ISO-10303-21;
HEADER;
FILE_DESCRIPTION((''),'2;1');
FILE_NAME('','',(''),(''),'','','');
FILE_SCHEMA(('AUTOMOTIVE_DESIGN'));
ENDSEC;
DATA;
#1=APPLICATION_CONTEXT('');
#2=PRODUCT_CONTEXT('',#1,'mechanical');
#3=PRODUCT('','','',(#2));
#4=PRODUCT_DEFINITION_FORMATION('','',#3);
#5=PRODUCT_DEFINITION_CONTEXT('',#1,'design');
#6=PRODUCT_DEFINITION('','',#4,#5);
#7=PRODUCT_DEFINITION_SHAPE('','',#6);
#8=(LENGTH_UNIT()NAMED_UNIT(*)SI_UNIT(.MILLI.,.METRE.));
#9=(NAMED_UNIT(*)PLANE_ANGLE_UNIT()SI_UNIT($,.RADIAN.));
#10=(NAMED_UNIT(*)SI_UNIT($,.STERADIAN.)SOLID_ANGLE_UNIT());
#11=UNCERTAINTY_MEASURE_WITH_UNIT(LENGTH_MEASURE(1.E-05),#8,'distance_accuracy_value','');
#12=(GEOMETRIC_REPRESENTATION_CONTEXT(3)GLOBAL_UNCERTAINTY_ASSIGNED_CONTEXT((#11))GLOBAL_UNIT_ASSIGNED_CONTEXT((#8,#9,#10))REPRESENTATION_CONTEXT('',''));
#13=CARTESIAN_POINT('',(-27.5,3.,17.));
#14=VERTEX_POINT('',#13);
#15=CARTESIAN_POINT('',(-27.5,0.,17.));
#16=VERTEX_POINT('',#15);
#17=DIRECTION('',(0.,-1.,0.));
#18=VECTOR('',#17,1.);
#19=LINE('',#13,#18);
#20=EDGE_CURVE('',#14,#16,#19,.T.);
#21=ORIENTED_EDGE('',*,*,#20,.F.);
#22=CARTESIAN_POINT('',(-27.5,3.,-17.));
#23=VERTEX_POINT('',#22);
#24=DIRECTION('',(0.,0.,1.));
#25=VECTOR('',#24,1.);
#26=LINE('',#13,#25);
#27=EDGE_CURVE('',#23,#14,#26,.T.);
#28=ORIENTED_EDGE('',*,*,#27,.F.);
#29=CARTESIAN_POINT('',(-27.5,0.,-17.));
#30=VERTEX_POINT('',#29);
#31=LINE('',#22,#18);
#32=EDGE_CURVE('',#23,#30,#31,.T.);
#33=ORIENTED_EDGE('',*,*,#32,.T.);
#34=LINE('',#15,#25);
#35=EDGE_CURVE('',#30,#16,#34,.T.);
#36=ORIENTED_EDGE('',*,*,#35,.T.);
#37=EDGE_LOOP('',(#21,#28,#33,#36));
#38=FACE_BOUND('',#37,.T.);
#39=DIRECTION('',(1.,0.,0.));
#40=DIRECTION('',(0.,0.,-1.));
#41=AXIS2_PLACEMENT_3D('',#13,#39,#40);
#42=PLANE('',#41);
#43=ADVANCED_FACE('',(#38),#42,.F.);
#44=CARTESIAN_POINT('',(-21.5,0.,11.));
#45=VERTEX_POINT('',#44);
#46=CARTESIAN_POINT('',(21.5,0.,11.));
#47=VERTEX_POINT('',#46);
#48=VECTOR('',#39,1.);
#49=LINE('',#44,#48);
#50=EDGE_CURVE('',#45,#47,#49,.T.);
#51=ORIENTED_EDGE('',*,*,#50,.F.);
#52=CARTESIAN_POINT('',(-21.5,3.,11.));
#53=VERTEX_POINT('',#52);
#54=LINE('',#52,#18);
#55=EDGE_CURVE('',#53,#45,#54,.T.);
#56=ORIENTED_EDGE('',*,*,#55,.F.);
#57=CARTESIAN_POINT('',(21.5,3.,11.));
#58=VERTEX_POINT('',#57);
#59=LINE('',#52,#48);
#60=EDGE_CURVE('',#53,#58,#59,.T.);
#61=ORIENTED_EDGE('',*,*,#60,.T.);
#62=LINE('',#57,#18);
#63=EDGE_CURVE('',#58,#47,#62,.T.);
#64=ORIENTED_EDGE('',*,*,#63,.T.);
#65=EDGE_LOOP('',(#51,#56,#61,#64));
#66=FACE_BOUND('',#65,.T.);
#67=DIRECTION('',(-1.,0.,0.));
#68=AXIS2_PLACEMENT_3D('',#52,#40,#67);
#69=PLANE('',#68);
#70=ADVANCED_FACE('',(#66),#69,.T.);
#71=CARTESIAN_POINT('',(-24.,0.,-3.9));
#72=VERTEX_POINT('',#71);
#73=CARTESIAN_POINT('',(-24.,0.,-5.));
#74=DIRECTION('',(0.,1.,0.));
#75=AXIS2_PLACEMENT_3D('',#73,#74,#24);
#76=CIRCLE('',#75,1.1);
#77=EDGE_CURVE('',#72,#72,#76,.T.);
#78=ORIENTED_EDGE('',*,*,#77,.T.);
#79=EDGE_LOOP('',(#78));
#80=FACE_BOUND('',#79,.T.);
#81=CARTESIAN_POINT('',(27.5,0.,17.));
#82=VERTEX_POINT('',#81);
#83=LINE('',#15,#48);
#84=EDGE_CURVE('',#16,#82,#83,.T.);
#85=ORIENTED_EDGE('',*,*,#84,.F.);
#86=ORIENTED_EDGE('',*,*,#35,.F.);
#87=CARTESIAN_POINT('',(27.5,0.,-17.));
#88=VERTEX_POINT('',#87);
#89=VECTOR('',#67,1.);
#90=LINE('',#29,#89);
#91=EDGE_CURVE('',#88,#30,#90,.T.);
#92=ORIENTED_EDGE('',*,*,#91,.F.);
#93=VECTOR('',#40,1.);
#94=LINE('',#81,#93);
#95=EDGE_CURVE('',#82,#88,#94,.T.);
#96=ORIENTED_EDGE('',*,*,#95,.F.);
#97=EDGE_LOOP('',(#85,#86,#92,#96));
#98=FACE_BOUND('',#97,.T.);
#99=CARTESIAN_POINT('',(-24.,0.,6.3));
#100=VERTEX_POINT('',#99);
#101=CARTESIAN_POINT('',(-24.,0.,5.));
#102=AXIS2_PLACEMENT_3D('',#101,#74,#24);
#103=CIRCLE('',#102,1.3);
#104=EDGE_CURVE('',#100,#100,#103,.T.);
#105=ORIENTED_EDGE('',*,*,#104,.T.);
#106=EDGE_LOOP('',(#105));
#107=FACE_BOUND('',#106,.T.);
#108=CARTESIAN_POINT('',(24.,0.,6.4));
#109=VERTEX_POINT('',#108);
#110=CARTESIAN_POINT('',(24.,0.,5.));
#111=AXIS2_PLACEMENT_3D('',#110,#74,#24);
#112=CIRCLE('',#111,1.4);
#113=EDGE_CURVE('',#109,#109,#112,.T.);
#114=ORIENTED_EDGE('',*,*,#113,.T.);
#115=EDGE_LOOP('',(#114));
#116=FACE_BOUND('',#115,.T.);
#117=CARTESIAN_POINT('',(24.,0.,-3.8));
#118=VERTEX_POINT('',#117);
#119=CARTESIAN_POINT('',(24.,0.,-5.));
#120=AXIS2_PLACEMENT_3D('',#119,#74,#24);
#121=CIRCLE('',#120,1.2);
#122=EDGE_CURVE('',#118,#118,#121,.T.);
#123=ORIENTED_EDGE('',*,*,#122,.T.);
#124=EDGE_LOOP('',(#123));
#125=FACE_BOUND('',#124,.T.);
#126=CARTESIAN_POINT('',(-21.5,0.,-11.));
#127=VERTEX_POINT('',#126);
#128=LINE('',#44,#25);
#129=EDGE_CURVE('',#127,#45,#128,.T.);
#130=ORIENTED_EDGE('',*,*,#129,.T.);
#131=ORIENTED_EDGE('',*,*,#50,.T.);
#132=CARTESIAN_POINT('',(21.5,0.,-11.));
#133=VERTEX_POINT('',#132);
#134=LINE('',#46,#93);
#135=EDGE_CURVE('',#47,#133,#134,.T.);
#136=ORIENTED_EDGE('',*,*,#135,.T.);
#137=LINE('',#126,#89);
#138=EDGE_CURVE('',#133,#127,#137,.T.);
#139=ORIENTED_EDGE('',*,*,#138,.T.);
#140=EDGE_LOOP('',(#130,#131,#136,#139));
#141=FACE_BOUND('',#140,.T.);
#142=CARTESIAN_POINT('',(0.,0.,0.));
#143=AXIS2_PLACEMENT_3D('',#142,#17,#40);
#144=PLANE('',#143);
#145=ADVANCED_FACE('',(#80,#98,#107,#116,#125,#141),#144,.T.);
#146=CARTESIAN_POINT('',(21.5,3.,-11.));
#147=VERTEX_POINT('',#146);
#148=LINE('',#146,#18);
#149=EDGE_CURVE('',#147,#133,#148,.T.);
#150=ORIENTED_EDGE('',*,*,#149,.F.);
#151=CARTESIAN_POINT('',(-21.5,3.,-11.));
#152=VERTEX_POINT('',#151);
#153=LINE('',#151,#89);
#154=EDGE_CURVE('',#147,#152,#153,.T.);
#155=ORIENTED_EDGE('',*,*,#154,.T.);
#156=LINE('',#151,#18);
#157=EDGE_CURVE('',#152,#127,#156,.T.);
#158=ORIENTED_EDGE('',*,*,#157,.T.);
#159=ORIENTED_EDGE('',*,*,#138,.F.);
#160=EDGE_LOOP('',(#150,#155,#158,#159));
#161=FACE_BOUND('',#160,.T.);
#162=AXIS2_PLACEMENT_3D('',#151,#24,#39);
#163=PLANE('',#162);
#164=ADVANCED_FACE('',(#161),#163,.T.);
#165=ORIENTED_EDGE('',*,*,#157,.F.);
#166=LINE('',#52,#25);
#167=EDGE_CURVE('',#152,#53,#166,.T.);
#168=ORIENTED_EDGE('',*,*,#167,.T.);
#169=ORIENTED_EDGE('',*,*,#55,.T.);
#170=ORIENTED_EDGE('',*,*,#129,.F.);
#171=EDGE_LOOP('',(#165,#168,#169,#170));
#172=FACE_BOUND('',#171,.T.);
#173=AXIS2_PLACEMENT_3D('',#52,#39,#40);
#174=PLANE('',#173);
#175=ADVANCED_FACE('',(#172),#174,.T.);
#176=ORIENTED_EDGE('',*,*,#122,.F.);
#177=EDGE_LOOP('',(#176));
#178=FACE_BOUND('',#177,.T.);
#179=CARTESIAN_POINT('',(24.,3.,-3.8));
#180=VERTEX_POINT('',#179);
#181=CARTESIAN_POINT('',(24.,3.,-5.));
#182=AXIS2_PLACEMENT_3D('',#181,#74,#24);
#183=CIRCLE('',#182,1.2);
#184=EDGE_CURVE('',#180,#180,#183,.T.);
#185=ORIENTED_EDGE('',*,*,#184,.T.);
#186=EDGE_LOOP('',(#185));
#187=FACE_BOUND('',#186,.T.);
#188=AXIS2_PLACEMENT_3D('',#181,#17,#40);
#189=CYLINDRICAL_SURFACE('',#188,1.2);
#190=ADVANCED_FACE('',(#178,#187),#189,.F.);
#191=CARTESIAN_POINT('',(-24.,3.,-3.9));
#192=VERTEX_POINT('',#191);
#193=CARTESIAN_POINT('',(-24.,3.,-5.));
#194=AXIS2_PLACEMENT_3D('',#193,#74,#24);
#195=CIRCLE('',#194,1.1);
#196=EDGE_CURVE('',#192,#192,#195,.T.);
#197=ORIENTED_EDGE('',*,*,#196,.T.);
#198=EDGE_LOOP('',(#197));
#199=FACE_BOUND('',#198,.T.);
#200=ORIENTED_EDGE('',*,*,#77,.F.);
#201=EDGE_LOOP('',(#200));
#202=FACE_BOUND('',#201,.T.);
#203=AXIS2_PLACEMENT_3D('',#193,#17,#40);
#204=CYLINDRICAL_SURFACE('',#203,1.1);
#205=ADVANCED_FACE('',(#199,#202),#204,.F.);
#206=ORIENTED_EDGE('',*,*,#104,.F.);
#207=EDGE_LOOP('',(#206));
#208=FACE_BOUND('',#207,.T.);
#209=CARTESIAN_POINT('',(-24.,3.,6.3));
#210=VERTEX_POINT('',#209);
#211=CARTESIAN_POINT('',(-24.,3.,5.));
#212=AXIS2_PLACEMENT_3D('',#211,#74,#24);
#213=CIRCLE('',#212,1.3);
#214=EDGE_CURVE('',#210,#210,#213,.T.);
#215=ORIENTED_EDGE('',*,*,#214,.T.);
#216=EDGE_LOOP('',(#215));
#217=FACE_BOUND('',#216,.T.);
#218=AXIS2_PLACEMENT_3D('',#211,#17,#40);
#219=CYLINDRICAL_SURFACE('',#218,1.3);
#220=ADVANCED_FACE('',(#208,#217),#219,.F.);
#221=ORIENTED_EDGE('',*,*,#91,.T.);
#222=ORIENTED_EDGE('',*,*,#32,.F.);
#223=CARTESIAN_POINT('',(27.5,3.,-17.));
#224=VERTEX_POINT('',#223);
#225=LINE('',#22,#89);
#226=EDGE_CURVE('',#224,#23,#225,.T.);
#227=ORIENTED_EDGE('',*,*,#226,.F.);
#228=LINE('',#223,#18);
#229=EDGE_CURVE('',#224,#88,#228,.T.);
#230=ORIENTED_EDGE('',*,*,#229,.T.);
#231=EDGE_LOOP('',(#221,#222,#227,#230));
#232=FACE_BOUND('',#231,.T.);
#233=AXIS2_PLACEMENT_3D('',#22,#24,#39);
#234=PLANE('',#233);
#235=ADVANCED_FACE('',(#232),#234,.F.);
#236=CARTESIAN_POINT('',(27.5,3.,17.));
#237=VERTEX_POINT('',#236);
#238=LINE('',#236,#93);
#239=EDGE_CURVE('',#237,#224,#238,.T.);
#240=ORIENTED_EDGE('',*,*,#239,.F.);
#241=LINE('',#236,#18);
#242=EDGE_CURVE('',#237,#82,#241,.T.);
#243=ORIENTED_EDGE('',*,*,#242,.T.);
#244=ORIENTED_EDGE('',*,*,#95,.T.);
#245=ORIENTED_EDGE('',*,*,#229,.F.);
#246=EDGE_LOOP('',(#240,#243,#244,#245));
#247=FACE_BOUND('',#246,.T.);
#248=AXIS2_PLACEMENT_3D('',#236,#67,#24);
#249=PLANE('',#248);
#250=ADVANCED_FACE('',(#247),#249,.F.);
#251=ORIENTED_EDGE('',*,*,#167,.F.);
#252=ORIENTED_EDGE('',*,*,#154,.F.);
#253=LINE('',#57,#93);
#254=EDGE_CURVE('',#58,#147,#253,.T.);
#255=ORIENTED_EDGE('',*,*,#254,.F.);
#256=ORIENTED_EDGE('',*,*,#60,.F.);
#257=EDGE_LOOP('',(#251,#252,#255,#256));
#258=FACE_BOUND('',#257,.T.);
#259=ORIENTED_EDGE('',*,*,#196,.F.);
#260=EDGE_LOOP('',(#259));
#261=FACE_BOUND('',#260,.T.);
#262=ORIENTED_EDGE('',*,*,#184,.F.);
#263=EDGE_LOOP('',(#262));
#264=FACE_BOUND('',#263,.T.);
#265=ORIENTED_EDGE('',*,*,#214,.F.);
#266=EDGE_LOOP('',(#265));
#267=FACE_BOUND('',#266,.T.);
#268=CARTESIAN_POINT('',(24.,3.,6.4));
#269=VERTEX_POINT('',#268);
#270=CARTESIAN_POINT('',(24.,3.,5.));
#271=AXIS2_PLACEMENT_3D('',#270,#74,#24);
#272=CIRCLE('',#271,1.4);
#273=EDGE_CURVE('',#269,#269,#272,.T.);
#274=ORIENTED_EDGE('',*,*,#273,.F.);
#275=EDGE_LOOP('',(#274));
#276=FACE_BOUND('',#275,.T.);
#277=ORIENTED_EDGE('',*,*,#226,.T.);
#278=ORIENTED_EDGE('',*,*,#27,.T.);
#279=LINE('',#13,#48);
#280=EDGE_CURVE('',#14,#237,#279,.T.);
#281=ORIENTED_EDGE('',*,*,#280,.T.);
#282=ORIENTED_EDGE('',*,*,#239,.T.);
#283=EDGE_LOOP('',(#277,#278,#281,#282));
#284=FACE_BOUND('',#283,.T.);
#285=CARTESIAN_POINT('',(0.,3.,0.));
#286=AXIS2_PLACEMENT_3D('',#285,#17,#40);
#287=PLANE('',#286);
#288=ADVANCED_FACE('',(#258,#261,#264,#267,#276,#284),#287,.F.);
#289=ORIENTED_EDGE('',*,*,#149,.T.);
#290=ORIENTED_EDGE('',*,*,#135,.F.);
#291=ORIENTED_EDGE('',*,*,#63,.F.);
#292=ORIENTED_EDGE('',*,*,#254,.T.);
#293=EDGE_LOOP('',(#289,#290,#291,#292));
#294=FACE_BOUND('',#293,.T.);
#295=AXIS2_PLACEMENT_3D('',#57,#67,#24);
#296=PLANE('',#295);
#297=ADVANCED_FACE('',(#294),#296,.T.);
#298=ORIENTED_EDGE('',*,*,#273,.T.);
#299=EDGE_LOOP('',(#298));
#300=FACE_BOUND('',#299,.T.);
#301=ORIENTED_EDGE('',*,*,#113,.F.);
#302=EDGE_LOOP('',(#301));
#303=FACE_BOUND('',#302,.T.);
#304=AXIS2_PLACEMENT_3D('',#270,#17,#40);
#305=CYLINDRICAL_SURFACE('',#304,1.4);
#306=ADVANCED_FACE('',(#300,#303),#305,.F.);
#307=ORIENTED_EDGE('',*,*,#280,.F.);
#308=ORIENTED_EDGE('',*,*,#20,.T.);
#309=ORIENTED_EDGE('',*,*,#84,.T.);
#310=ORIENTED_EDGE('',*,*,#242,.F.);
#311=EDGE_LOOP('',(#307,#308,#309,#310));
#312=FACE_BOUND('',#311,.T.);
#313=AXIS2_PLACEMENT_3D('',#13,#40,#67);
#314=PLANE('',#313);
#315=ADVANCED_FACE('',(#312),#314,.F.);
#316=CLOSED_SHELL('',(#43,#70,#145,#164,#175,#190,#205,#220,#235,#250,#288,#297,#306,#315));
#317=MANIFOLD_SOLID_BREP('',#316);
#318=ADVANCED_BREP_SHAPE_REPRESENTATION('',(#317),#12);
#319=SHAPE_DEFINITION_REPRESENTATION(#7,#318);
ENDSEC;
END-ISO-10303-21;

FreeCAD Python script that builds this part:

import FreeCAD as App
import Part
import Sketcher


def add_polygon(sketch, points):
    """Adds a closed chain of lines whose ends are joined by coincident constraints."""
    first, n = sketch.GeometryCount, len(points)
    for a, b in zip(points, points[1:] + points[:1]):
        sketch.addGeometry(Part.LineSegment(App.Vector(*a, 0), App.Vector(*b, 0)), False)
    for i in range(n):
        sketch.addConstraint(Sketcher.Constraint("Coincident", first + i, 2, first + (i + 1) % n, 1))

doc = App.newDocument("Part")
body = doc.addObject("PartDesign::Body", "Body")

# Sketch on XZ plane
sketch1 = body.newObject("Sketcher::SketchObject", "Sketch")
sketch1.AttachmentSupport = (doc.getObject("XZ_Plane"), [""])
sketch1.MapMode = "FlatFace"
add_polygon(sketch1, [(-27.5, -17), (-27.5, 17), (27.5, 17), (27.5, -17)])  # lines 0-3
sketch1.addGeometry(Part.Circle(App.Vector(-24, 5, 0), App.Vector(0, 0, 1), 1.3), False)  # 4
sketch1.addGeometry(Part.Circle(App.Vector(24, 5, 0), App.Vector(0, 0, 1), 1.4), False)  # 5
sketch1.addGeometry(Part.Circle(App.Vector(-24, -5, 0), App.Vector(0, 0, 1), 1.1), False)  # 6
add_polygon(sketch1, [(21.5, 11), (-21.5, 11), (-21.5, -11), (21.5, -11)])  # lines 7-10
sketch1.addGeometry(Part.Circle(App.Vector(24, -5, 0), App.Vector(0, 0, 1), 1.2), False)  # 11
sketch1.addConstraint(Sketcher.Constraint("Vertical", 0))
sketch1.addConstraint(Sketcher.Constraint("Horizontal", 1))
sketch1.addConstraint(Sketcher.Constraint("Vertical", 2))
sketch1.addConstraint(Sketcher.Constraint("Horizontal", 3))
sketch1.addConstraint(Sketcher.Constraint("Horizontal", 7))
sketch1.addConstraint(Sketcher.Constraint("Vertical", 8))
sketch1.addConstraint(Sketcher.Constraint("Horizontal", 9))
sketch1.addConstraint(Sketcher.Constraint("Vertical", 10))
sketch1.addConstraint(Sketcher.Constraint("Symmetric", 5, 3, 6, 3, -1, 1))
sketch1.addConstraint(Sketcher.Constraint("Symmetric", 4, 3, 11, 3, -1, 1))
sketch1.addConstraint(Sketcher.Constraint("Symmetric", 0, 2, 2, 2, -1, 1))
sketch1.addConstraint(Sketcher.Constraint("Symmetric", 7, 2, 9, 2, -1, 1))
sketch1.addConstraint(Sketcher.Constraint("Symmetric", 4, 3, 5, 3, -2))
sketch1.addConstraint(Sketcher.Constraint("Diameter", 4, 2.6))
sketch1.addConstraint(Sketcher.Constraint("Diameter", 5, 2.8))
sketch1.addConstraint(Sketcher.Constraint("Diameter", 6, 2.2))
sketch1.addConstraint(Sketcher.Constraint("Diameter", 11, 2.4))
sketch1.addConstraint(Sketcher.Constraint("DistanceX", 1, 1, 1, 2, 55.0))
sketch1.addConstraint(Sketcher.Constraint("DistanceX", 7, 2, 7, 1, 43.0))
sketch1.addConstraint(Sketcher.Constraint("DistanceY", 0, 1, 0, 2, 34.0))
sketch1.addConstraint(Sketcher.Constraint("DistanceY", 8, 2, 8, 1, 22.0))
sketch1.addConstraint(Sketcher.Constraint("DistanceX", 4, 3, -1, 1, 24.0))
sketch1.addConstraint(Sketcher.Constraint("DistanceY", -1, 1, 4, 3, 5.0))
pad1 = body.newObject("PartDesign::Pad", "Pad")
pad1.Profile = sketch1
pad1.Length = 3
pad1.Reversed = True

doc.recompute()
